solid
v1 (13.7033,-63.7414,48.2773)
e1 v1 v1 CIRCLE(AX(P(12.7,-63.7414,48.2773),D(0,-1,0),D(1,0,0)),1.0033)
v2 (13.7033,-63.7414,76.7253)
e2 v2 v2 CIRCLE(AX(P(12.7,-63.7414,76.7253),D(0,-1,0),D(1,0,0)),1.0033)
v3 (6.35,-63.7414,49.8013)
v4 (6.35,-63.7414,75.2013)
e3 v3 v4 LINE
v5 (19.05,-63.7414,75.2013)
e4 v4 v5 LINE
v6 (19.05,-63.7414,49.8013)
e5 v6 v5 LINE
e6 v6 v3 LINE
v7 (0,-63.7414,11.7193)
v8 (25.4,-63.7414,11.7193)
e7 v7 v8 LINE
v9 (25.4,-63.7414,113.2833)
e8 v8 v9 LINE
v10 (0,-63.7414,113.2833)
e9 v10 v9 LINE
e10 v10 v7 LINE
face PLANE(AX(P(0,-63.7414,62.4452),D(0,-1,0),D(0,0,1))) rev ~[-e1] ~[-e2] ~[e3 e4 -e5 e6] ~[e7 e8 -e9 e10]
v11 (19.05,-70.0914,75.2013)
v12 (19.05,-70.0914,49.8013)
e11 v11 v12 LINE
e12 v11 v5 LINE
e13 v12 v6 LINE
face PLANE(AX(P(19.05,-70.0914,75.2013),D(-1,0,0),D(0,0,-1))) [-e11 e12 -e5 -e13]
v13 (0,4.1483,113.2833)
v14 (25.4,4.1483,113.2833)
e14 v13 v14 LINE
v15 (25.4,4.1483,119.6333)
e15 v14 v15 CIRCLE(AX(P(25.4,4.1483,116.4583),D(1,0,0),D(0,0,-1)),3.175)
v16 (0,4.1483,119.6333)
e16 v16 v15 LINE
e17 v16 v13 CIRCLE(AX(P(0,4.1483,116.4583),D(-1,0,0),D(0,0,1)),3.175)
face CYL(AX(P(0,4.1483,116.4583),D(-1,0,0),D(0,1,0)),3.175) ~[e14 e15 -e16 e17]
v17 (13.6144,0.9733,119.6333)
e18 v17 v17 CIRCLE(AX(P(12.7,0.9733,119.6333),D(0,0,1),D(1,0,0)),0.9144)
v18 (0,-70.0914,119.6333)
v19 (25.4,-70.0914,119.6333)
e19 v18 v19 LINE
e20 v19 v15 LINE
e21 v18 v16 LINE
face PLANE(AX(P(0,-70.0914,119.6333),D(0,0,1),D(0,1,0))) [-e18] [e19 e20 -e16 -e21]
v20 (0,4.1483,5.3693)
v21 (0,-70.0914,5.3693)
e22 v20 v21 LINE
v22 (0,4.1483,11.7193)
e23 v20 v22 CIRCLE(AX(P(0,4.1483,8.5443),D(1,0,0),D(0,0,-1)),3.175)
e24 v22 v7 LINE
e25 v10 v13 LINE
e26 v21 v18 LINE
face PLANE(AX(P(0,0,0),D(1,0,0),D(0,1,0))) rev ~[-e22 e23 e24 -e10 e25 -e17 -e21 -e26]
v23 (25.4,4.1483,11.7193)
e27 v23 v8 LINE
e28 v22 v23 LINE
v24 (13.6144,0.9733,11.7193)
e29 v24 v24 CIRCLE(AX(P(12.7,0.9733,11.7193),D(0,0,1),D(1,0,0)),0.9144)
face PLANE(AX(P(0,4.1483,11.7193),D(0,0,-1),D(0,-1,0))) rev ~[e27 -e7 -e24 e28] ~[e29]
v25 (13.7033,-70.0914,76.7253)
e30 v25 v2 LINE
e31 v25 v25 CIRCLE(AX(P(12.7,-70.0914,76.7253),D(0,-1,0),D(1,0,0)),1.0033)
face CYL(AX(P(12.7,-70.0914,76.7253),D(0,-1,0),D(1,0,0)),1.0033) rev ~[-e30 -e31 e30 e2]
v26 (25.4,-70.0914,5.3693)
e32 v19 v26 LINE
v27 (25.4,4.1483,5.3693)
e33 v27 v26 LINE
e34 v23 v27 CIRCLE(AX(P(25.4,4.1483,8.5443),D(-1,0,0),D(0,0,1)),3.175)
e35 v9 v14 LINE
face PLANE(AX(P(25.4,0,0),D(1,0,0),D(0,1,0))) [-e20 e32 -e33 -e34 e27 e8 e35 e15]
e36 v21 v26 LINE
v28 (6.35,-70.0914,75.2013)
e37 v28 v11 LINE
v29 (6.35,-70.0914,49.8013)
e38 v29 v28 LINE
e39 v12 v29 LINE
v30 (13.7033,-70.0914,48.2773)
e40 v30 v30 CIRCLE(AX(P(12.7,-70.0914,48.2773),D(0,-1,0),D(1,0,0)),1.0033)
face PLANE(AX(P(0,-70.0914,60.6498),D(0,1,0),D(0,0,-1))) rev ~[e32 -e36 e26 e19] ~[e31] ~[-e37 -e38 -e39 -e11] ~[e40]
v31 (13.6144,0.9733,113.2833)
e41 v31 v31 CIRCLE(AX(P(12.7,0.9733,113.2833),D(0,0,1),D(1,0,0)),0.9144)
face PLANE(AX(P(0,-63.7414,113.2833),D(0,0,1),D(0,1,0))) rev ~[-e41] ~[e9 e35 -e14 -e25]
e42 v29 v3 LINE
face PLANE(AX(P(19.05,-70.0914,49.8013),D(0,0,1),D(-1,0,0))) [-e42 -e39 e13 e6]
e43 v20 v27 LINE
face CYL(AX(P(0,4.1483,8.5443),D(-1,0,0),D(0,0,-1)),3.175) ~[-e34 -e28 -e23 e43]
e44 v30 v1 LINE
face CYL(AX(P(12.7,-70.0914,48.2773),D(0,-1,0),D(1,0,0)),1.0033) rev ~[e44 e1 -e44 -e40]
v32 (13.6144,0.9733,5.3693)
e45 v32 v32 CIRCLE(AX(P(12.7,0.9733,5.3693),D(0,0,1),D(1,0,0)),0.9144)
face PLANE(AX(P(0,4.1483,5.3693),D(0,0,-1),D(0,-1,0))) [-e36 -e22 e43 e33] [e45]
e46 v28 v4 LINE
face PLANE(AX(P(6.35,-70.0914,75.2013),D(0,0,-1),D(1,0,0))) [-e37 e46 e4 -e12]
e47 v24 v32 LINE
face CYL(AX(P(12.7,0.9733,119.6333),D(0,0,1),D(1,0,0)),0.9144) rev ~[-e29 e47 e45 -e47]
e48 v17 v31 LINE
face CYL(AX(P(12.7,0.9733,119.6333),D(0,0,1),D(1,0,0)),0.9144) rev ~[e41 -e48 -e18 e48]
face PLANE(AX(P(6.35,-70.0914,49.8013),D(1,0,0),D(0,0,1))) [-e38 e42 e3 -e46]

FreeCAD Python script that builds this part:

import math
import FreeCAD as App
import Part
import Sketcher
from FreeCAD import Vector
Q = App.Units.Quantity

doc = App.newDocument("Part")
body = doc.addObject("PartDesign::Body", "Body")

# Sketch on YZ plane
sketch1 = body.newObject("Sketcher::SketchObject", "Sketch")
sketch1.AttachmentSupport = (doc.getObject("YZ_Plane"), [""])
sketch1.MapMode = "FlatFace"
sketch1.addGeometry(Part.LineSegment(Vector(-70.0914, 5.3693, 0), Vector(4.1483, 5.3693, 0)), False)
sketch1.addGeometry(Part.ArcOfCircle(Part.Circle(Vector(4.1483, 8.5443, 0), Vector(0, 0, 1), 3.175), math.radians(-90), math.radians(90)), False)
sketch1.addGeometry(Part.LineSegment(Vector(4.1483, 11.7193, 0), Vector(-63.7414, 11.7193, 0)), False)
sketch1.addGeometry(Part.LineSegment(Vector(-63.7414, 11.7193, 0), Vector(-63.7414, 113.2833, 0)), False)
sketch1.addGeometry(Part.LineSegment(Vector(-63.7414, 113.2833, 0), Vector(4.1483, 113.2833, 0)), False)
sketch1.addGeometry(Part.ArcOfCircle(Part.Circle(Vector(4.1483, 116.4583, 0), Vector(0, 0, 1), 3.175), math.radians(-90), math.radians(90)), False)
sketch1.addGeometry(Part.LineSegment(Vector(4.1483, 119.6333, 0), Vector(-70.0914, 119.6333, 0)), False)
sketch1.addGeometry(Part.LineSegment(Vector(-70.0914, 119.6333, 0), Vector(-70.0914, 5.3693, 0)), False)
sketch1.addConstraint(Sketcher.Constraint("Tangent", 0, 2, 1, 1))
sketch1.addConstraint(Sketcher.Constraint("Tangent", 1, 2, 2, 1))
sketch1.addConstraint(Sketcher.Constraint("Coincident", 2, 2, 3, 1))
sketch1.addConstraint(Sketcher.Constraint("Coincident", 3, 2, 4, 1))
sketch1.addConstraint(Sketcher.Constraint("Tangent", 4, 2, 5, 1))
sketch1.addConstraint(Sketcher.Constraint("Tangent", 5, 2, 6, 1))
sketch1.addConstraint(Sketcher.Constraint("Coincident", 6, 2, 7, 1))
sketch1.addConstraint(Sketcher.Constraint("Coincident", 7, 2, 0, 1))
sketch1.addConstraint(Sketcher.Constraint("Horizontal", 0))
sketch1.addConstraint(Sketcher.Constraint("Horizontal", 2))
sketch1.addConstraint(Sketcher.Constraint("Vertical", 3))
sketch1.addConstraint(Sketcher.Constraint("Horizontal", 4))
sketch1.addConstraint(Sketcher.Constraint("Horizontal", 6))
sketch1.addConstraint(Sketcher.Constraint("Vertical", 7))
sketch1.addConstraint(Sketcher.Constraint("Equal", 1, 5))
sketch1.addConstraint(Sketcher.Constraint("Vertical", 1, 3, 5, 3))
sketch1.addConstraint(Sketcher.Constraint("Radius", 1, Q("0.125 in")))
sketch1.addConstraint(Sketcher.Constraint("DistanceX", 6, 2, 3, 2, Q("0.25 in")))
sketch1.addConstraint(Sketcher.Constraint("DistanceX", 0, 1, 0, 2, Q("74.2397 mm")))
sketch1.addConstraint(Sketcher.Constraint("DistanceY", 3, 1, 3, 2, Q("101.564 mm")))
sketch1.addConstraint(Sketcher.Constraint("DistanceY", -1, 1, 1, 3, Q("0.3364 in")))
sketch1.addConstraint(Sketcher.Constraint("DistanceX", 2, 2, -1, 1, Q("2.5095 in")))
pad1 = body.newObject("PartDesign::Pad", "Pad")
pad1.Profile = sketch1
pad1.Length = Q("1 in")

# Sketch on XY plane
sketch2 = body.newObject("Sketcher::SketchObject", "Sketch001")
sketch2.AttachmentSupport = (doc.getObject("XY_Plane"), [""])
sketch2.MapMode = "FlatFace"
sketch2.AttachmentOffset = App.Placement(Vector(0, 0, 119.6333), App.Rotation())
sketch2.addGeometry(Part.Circle(Vector(12.7, 0.9733, 0), Vector(0, 0, 1), 0.9144), False)
sketch2.addConstraint(Sketcher.Constraint("Diameter", 0, Q("0.072 in")))
sketch2.addConstraint(Sketcher.Constraint("DistanceX", -1, 1, 0, 3, Q("0.5 in")))
sketch2.addConstraint(Sketcher.Constraint("DistanceY", -1, 1, 0, 3, Q("0.9733 mm")))
pocket1 = body.newObject("PartDesign::Pocket", "Pocket")
pocket1.Profile = sketch2
pocket1.Type = "ThroughAll"

# Sketch on XZ plane
sketch3 = body.newObject("Sketcher::SketchObject", "Sketch002")
sketch3.AttachmentSupport = (doc.getObject("XZ_Plane"), [""])
sketch3.MapMode = "FlatFace"
sketch3.AttachmentOffset = App.Placement(Vector(0, 0, 2.7595039 * 25.4), App.Rotation())
sketch3.addGeometry(Part.LineSegment(Vector(6.35, 49.8013, 0), Vector(19.05, 49.8013, 0)), False)
sketch3.addGeometry(Part.LineSegment(Vector(19.05, 49.8013, 0), Vector(19.05, 75.2013, 0)), False)
sketch3.addGeometry(Part.LineSegment(Vector(19.05, 75.2013, 0), Vector(6.35, 75.2013, 0)), False)
sketch3.addGeometry(Part.LineSegment(Vector(6.35, 75.2013, 0), Vector(6.35, 49.8013, 0)), False)
sketch3.addConstraint(Sketcher.Constraint("Coincident", 0, 2, 1, 1))
sketch3.addConstraint(Sketcher.Constraint("Coincident", 1, 2, 2, 1))
sketch3.addConstraint(Sketcher.Constraint("Coincident", 2, 2, 3, 1))
sketch3.addConstraint(Sketcher.Constraint("Coincident", 3, 2, 0, 1))
sketch3.addConstraint(Sketcher.Constraint("Horizontal", 0))
sketch3.addConstraint(Sketcher.Constraint("Vertical", 1))
sketch3.addConstraint(Sketcher.Constraint("Horizontal", 2))
sketch3.addConstraint(Sketcher.Constraint("Vertical", 3))
sketch3.addConstraint(Sketcher.Constraint("DistanceY", 1, 1, 1, 2, Q("1 in")))
sketch3.addConstraint(Sketcher.Constraint("DistanceX", 0, 1, 0, 2, Q("0.5 in")))
sketch3.addConstraint(Sketcher.Constraint("DistanceX", -1, 1, 0, 2, Q("0.75 in")))
sketch3.addConstraint(Sketcher.Constraint("DistanceY", -1, 1, 0, 2, Q("49.8013 mm")))
pocket2 = body.newObject("PartDesign::Pocket", "Pocket001")
pocket2.Profile = sketch3
pocket2.Type = "ThroughAll"

# Sketch on XZ plane
sketch4 = body.newObject("Sketcher::SketchObject", "Sketch003")
sketch4.AttachmentSupport = (doc.getObject("XZ_Plane"), [""])
sketch4.MapMode = "FlatFace"
sketch4.AttachmentOffset = App.Placement(Vector(0, 0, 2.7595039 * 25.4), App.Rotation())
sketch4.addGeometry(Part.Circle(Vector(12.7, 76.7253, 0), Vector(0, 0, 1), 1.0033), False)
sketch4.addGeometry(Part.Circle(Vector(12.7, 48.2773, 0), Vector(0, 0, 1), 1.0033), False)
sketch4.addConstraint(Sketcher.Constraint("Equal", 0, 1))
sketch4.addConstraint(Sketcher.Constraint("Vertical", 0, 3, 1, 3))
sketch4.addConstraint(Sketcher.Constraint("Diameter", 0, Q("0.079 in")))
sketch4.addConstraint(Sketcher.Constraint("DistanceX", -1, 1, 0, 3, Q("0.5 in")))
sketch4.addConstraint(Sketcher.Constraint("DistanceY", 1, 3, 0, 3, Q("1.12 in")))
sketch4.addConstraint(Sketcher.Constraint("DistanceY", -1, 1, 0, 3, Q("76.7253 mm")))
pocket3 = body.newObject("PartDesign::Pocket", "Pocket002")
pocket3.Profile = sketch4
pocket3.Type = "ThroughAll"

doc.recompute()
